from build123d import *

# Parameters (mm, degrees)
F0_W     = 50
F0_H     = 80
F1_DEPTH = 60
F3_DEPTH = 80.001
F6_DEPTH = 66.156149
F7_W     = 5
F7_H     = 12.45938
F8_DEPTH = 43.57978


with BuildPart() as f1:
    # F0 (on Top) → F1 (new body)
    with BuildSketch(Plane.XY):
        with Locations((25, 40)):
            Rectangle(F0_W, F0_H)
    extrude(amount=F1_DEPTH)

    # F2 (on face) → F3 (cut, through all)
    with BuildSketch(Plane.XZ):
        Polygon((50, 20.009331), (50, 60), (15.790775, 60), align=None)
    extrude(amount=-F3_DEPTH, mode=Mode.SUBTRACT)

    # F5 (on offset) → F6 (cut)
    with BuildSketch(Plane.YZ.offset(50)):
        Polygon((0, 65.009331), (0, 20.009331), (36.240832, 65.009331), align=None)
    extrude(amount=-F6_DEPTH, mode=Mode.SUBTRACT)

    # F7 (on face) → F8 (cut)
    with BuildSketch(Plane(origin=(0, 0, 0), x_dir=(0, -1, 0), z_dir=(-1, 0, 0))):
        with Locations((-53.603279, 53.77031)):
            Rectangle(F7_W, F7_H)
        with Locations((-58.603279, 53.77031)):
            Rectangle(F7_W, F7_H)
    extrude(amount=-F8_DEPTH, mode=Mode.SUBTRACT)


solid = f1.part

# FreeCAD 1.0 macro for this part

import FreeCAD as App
import Part
import Sketcher
Q = App.Units.Quantity


def add_polygon(sketch, points):
    """Adds a closed chain of lines whose ends are joined by coincident constraints."""
    first, n = sketch.GeometryCount, len(points)
    for a, b in zip(points, points[1:] + points[:1]):
        sketch.addGeometry(Part.LineSegment(App.Vector(*a, 0), App.Vector(*b, 0)), False)
    for i in range(n):
        sketch.addConstraint(Sketcher.Constraint("Coincident", first + i, 2, first + (i + 1) % n, 1))

doc = App.newDocument("Part")
body = doc.addObject("PartDesign::Body", "Body")

# Sketch on XY plane
sketch1 = body.newObject("Sketcher::SketchObject", "Sketch")
sketch1.AttachmentSupport = (doc.getObject("XY_Plane"), [""])
sketch1.MapMode = "FlatFace"
add_polygon(sketch1, [(0, 80), (0, 0), (50, 0), (50, 80)])  # lines 0-3
sketch1.addConstraint([
    Sketcher.Constraint("Vertical", 0),
    Sketcher.Constraint("Horizontal", 1),
    Sketcher.Constraint("Vertical", 2),
    Sketcher.Constraint("Horizontal", 3),
    Sketcher.Constraint("Coincident", 0, 2, -1, 1),
    Sketcher.Constraint("DistanceX", 1, 1, 1, 2, Q("50 mm")),
    Sketcher.Constraint("DistanceY", 0, 2, 0, 1, Q("80 mm")),
])
pad1 = body.newObject("PartDesign::Pad", "Pad")
pad1.Profile = sketch1
pad1.Length = 60

# Sketch on XZ plane
sketch2 = body.newObject("Sketcher::SketchObject", "Sketch001")
sketch2.AttachmentSupport = (doc.getObject("XZ_Plane"), [""])
sketch2.MapMode = "FlatFace"
add_polygon(sketch2, [(50, 20), (50, 60), (16, 60)])  # lines 0-2
sketch2.addConstraint([
    Sketcher.Constraint("Vertical", 0),
    Sketcher.Constraint("Horizontal", 1),
    Sketcher.Constraint("DistanceX", -1, 1, 0, 2, Q("50 mm")),
    Sketcher.Constraint("DistanceY", -1, 1, 0, 2, Q("60 mm")),
    Sketcher.Constraint("DistanceY", 0, 1, 0, 2, Q("39.990669 mm")),
    Sketcher.Constraint("DistanceX", 1, 2, 1, 1, Q("34.209225 mm")),
])
pocket1 = body.newObject("PartDesign::Pocket", "Pocket")
pocket1.Profile = sketch2
pocket1.Type = "ThroughAll"

# Sketch on YZ plane
sketch3 = body.newObject("Sketcher::SketchObject", "Sketch002")
sketch3.AttachmentSupport = (doc.getObject("YZ_Plane"), [""])
sketch3.MapMode = "FlatFace"
sketch3.AttachmentOffset = App.Placement(App.Vector(0, 0, 50), App.Rotation())
add_polygon(sketch3, [(0, 65), (0, 20), (36, 65)])  # lines 0-2
sketch3.addConstraint([
    Sketcher.Constraint("Vertical", 0),
    Sketcher.Constraint("Horizontal", 2),
    Sketcher.Constraint("PointOnObject", 0, 2, -2),
    Sketcher.Constraint("DistanceY", 0, 2, 0, 1, Q("45 mm")),
    Sketcher.Constraint("DistanceX", 2, 2, 2, 1, Q("36.240832 mm")),
    Sketcher.Constraint("DistanceY", -1, 1, 0, 2, Q("20.009331 mm")),
])
pocket2 = body.newObject("PartDesign::Pocket", "Pocket001")
pocket2.Profile = sketch3
pocket2.Length = 66.156149

# Sketch on YZ plane
sketch4 = body.newObject("Sketcher::SketchObject", "Sketch003")
sketch4.AttachmentSupport = (doc.getObject("YZ_Plane"), [""])
sketch4.MapMode = "FlatFace"
add_polygon(sketch4, [(51, 48), (51, 60), (61, 60), (61, 48)])  # lines 0-3
sketch4.addConstraint([
    Sketcher.Constraint("Vertical", 0),
    Sketcher.Constraint("Horizontal", 1),
    Sketcher.Constraint("Vertical", 2),
    Sketcher.Constraint("Horizontal", 3),
    Sketcher.Constraint("DistanceX", 1, 1, 1, 2, Q("10 mm")),
    Sketcher.Constraint("DistanceY", -1, 1, 0, 2, Q("60 mm")),
    Sketcher.Constraint("DistanceY", 0, 1, 0, 2, Q("12.45938 mm")),
    Sketcher.Constraint("DistanceX", -1, 1, 0, 2, Q("51.103279 mm")),
])
pocket3 = body.newObject("PartDesign::Pocket", "Pocket002")
pocket3.Profile = sketch4
pocket3.Length = 43.57978
pocket3.Reversed = True

doc.recompute()
